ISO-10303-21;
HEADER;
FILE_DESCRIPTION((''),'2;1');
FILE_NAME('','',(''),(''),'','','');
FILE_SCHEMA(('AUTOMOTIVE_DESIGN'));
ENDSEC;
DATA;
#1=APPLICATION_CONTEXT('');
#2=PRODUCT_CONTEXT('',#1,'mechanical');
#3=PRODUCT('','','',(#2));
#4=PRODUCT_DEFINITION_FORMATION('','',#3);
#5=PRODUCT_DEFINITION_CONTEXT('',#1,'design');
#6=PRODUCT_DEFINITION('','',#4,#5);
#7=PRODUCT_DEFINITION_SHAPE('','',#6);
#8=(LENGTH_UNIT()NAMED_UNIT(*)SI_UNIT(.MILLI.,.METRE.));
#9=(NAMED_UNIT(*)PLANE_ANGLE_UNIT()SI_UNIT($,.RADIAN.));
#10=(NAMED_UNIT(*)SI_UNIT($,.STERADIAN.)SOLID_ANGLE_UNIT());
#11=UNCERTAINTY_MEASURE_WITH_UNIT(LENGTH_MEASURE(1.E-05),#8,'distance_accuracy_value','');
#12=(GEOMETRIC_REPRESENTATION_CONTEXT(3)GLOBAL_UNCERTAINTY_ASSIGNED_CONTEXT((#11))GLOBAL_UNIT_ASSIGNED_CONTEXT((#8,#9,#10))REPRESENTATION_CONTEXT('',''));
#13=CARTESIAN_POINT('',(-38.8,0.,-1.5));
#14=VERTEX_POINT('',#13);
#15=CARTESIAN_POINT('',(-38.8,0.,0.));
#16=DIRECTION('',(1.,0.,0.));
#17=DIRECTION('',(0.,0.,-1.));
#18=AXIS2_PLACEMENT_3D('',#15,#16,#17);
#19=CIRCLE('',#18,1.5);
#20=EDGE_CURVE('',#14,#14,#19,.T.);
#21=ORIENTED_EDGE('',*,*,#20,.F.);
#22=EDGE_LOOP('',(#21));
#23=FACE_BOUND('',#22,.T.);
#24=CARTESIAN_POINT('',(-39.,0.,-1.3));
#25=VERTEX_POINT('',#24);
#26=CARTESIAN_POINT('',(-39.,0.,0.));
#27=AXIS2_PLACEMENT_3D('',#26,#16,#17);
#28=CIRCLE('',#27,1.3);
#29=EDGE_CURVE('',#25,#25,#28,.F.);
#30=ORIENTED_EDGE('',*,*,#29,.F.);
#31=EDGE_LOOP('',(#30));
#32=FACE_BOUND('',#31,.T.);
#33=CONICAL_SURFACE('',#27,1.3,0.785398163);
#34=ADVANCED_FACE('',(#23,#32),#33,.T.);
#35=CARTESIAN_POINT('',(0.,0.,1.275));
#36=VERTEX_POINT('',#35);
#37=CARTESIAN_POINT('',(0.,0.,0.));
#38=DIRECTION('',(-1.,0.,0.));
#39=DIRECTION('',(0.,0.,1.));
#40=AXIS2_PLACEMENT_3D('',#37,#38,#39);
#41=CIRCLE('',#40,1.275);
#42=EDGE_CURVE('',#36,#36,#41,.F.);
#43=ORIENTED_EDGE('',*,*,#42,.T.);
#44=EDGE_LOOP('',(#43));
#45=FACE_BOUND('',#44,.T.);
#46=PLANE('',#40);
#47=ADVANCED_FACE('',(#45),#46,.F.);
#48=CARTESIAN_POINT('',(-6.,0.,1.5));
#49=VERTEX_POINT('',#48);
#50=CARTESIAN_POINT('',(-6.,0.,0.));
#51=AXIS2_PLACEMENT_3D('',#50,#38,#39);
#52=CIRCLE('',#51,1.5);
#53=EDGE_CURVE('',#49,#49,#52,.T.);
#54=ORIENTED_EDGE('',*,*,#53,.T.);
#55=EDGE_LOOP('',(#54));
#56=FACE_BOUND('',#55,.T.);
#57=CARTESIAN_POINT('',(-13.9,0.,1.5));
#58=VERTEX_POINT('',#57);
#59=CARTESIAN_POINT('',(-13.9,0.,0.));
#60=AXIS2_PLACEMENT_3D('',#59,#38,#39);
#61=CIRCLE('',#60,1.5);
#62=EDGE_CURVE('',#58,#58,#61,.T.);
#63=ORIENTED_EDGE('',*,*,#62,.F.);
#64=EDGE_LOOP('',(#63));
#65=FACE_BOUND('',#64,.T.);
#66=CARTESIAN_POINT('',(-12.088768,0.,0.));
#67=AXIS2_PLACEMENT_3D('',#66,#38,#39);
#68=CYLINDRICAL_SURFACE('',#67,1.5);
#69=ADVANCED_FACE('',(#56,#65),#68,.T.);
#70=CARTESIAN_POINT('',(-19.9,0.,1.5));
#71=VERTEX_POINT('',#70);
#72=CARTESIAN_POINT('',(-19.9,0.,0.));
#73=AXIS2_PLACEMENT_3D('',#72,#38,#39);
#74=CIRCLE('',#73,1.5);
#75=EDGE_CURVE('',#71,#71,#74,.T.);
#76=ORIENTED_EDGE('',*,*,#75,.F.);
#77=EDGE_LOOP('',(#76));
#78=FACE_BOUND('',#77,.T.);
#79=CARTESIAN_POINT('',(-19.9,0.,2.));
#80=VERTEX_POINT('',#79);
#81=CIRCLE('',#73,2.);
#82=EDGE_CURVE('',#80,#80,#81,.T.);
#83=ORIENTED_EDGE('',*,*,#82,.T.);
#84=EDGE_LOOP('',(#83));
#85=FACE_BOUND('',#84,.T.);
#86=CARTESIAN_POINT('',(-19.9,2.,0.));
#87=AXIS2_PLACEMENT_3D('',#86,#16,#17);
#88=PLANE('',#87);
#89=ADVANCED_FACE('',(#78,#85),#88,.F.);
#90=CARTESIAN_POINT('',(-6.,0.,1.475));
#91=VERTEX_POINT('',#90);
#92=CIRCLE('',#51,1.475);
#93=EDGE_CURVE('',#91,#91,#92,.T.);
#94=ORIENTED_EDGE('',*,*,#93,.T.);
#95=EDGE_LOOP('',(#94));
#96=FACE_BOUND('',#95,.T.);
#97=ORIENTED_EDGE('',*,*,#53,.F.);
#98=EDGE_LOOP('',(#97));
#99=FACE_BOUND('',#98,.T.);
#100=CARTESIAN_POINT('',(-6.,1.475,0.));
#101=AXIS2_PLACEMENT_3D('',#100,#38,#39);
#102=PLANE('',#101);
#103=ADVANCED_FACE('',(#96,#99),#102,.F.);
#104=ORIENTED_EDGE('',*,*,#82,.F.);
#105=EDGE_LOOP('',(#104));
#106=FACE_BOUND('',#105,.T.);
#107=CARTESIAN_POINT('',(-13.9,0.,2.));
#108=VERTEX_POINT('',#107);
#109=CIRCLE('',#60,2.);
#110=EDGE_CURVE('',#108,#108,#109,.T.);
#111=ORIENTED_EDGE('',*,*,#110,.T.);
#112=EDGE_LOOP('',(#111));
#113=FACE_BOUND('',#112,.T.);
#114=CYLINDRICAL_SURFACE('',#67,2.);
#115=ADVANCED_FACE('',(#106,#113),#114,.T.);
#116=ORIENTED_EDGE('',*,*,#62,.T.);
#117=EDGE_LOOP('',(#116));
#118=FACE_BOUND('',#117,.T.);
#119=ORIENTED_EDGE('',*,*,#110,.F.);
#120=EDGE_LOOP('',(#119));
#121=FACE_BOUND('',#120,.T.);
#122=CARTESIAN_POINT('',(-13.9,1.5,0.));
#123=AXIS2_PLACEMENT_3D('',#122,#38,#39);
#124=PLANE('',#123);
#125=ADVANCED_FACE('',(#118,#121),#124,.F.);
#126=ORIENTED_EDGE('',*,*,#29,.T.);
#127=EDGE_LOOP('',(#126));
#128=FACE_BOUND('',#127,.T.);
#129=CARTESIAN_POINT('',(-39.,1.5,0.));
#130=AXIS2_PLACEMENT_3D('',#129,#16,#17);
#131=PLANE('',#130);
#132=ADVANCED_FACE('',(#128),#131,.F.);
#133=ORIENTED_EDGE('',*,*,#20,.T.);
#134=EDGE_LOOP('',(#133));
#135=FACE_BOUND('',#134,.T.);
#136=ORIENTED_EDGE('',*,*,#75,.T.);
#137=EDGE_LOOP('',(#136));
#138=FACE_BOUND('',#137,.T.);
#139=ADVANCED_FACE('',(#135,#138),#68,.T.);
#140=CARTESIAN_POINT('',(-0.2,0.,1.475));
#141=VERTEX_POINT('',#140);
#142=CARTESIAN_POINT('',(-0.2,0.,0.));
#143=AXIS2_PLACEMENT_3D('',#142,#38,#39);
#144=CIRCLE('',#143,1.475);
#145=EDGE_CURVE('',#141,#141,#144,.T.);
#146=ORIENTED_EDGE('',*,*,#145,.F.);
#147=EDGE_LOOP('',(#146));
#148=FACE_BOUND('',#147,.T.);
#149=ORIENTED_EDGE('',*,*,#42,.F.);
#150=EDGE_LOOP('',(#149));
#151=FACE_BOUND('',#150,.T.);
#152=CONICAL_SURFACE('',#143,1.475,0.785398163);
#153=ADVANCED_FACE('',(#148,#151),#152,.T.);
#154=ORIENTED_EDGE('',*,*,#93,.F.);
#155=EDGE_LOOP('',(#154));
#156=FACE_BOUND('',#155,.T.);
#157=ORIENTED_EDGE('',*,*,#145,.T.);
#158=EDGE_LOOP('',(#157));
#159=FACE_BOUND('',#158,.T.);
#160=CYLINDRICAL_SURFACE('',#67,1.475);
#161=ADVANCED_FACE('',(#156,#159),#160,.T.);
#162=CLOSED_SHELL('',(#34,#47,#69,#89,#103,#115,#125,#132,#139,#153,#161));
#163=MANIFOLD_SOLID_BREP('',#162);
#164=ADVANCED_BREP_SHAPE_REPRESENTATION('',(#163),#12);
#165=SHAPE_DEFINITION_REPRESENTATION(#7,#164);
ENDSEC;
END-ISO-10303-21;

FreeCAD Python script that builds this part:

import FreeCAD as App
import Part
import Sketcher
from FreeCAD import Vector
Q = App.Units.Quantity


def edges_at(feature, points):
    """Names of the edges that pass closest to the given points."""
    edges = feature.Shape.Edges
    near = lambda p: min(range(len(edges)), key=lambda i: edges[i].distToShape(Part.Vertex(*p))[0])
    return sorted({f"Edge{near(p) + 1}" for p in points})


def add_polygon(sketch, points):
    """Adds a closed chain of lines whose ends are joined by coincident constraints."""
    first, n = sketch.GeometryCount, len(points)
    for a, b in zip(points, points[1:] + points[:1]):
        sketch.addGeometry(Part.LineSegment(App.Vector(*a, 0), App.Vector(*b, 0)), False)
    for i in range(n):
        sketch.addConstraint(Sketcher.Constraint("Coincident", first + i, 2, first + (i + 1) % n, 1))

doc = App.newDocument("Part")
params = doc.addObject("Spreadsheet::Sheet", "Params")
for row, (alias, value) in enumerate([
    ("sketch1_width", "6 mm"),
    ("sketch1_width2", "39 mm"),
    ("sketch1_width3", "7.9 mm"),
    ("sketch1_height", "0.5 mm"),
    ("sketch1_height2", "1.5 mm"),
    ("revolution_angle", "360 deg"),
    ("chamfer_size", "0.2 mm"),
], start=1):
    params.set(f"A{row}", alias)
    params.set(f"B{row}", "=" + value)
    params.setAlias(f"B{row}", alias)

body = doc.addObject("PartDesign::Body", "Body")

# Sketch on XY plane
sketch1 = doc.addObject("Sketcher::SketchObject", "Sketch")
body.addObject(sketch1)
sketch1.AttachmentSupport = (doc.XY_Plane, [""])
sketch1.MapMode = "FlatFace"
add_polygon(sketch1, [(0, 0), (0, 1.475), (-6, 1.475), (-6, 1.5), (-13.9, 1.5), (-13.9, 2), (-19.9, 2), (-19.9, 1.5), (-39, 1.5), (-39, 0)])  # lines 0-9
sketch1.addConstraint(Sketcher.Constraint("Vertical", 0))
sketch1.addConstraint(Sketcher.Constraint("Horizontal", 1))
sketch1.addConstraint(Sketcher.Constraint("Vertical", 2))
sketch1.addConstraint(Sketcher.Constraint("Horizontal", 3))
sketch1.addConstraint(Sketcher.Constraint("Vertical", 4))
sketch1.addConstraint(Sketcher.Constraint("Horizontal", 5))
sketch1.addConstraint(Sketcher.Constraint("Vertical", 6))
sketch1.addConstraint(Sketcher.Constraint("Horizontal", 7))
sketch1.addConstraint(Sketcher.Constraint("Vertical", 8))
sketch1.addConstraint(Sketcher.Constraint("Horizontal", 9))
sketch1.addConstraint(Sketcher.Constraint("Coincident", 9, 2, -1, 1))
sketch1.addConstraint(Sketcher.Constraint("Horizontal", 3, 2, 6, 2))
sketch1.addConstraint(Sketcher.Constraint("Equal", 1, 5))
sketch1.addConstraint(Sketcher.Constraint("DistanceX", 1, 2, 1, 1, Q("6 mm")))
sketch1.addConstraint(Sketcher.Constraint("DistanceX", 9, 1, 9, 2, Q("39 mm")))
sketch1.addConstraint(Sketcher.Constraint("DistanceX", 3, 2, 3, 1, Q("7.9 mm")))
sketch1.addConstraint(Sketcher.Constraint("DistanceY", 4, 1, 4, 2, Q("0.5 mm")))
sketch1.addConstraint(Sketcher.Constraint("DistanceY", 8, 2, 8, 1, Q("1.5 mm")))
sketch1.addConstraint(Sketcher.Constraint("DistanceY", 0, 1, 0, 2, Q("1.475 mm")))
sketch1.setExpression("Constraints[23]", "Params.sketch1_width")
sketch1.setExpression("Constraints[24]", "Params.sketch1_width2")
sketch1.setExpression("Constraints[25]", "Params.sketch1_width3")
sketch1.setExpression("Constraints[26]", "Params.sketch1_height")
sketch1.setExpression("Constraints[27]", "Params.sketch1_height2")
revolution = doc.addObject("PartDesign::Revolution", "Revolution")
body.addObject(revolution)
revolution.Profile = sketch1
revolution.ReferenceAxis = (sketch1, ["H_Axis"])
revolution.setExpression("Angle", "Params.revolution_angle")
doc.recompute()

chamfer = doc.addObject("PartDesign::Chamfer", "Chamfer")
body.addObject(chamfer)
chamfer.Base = (revolution, edges_at(revolution, [(0, 0, -1.475), (-39, 0, -1.5)]))
chamfer.setExpression("Size", "Params.chamfer_size")

doc.recompute()
